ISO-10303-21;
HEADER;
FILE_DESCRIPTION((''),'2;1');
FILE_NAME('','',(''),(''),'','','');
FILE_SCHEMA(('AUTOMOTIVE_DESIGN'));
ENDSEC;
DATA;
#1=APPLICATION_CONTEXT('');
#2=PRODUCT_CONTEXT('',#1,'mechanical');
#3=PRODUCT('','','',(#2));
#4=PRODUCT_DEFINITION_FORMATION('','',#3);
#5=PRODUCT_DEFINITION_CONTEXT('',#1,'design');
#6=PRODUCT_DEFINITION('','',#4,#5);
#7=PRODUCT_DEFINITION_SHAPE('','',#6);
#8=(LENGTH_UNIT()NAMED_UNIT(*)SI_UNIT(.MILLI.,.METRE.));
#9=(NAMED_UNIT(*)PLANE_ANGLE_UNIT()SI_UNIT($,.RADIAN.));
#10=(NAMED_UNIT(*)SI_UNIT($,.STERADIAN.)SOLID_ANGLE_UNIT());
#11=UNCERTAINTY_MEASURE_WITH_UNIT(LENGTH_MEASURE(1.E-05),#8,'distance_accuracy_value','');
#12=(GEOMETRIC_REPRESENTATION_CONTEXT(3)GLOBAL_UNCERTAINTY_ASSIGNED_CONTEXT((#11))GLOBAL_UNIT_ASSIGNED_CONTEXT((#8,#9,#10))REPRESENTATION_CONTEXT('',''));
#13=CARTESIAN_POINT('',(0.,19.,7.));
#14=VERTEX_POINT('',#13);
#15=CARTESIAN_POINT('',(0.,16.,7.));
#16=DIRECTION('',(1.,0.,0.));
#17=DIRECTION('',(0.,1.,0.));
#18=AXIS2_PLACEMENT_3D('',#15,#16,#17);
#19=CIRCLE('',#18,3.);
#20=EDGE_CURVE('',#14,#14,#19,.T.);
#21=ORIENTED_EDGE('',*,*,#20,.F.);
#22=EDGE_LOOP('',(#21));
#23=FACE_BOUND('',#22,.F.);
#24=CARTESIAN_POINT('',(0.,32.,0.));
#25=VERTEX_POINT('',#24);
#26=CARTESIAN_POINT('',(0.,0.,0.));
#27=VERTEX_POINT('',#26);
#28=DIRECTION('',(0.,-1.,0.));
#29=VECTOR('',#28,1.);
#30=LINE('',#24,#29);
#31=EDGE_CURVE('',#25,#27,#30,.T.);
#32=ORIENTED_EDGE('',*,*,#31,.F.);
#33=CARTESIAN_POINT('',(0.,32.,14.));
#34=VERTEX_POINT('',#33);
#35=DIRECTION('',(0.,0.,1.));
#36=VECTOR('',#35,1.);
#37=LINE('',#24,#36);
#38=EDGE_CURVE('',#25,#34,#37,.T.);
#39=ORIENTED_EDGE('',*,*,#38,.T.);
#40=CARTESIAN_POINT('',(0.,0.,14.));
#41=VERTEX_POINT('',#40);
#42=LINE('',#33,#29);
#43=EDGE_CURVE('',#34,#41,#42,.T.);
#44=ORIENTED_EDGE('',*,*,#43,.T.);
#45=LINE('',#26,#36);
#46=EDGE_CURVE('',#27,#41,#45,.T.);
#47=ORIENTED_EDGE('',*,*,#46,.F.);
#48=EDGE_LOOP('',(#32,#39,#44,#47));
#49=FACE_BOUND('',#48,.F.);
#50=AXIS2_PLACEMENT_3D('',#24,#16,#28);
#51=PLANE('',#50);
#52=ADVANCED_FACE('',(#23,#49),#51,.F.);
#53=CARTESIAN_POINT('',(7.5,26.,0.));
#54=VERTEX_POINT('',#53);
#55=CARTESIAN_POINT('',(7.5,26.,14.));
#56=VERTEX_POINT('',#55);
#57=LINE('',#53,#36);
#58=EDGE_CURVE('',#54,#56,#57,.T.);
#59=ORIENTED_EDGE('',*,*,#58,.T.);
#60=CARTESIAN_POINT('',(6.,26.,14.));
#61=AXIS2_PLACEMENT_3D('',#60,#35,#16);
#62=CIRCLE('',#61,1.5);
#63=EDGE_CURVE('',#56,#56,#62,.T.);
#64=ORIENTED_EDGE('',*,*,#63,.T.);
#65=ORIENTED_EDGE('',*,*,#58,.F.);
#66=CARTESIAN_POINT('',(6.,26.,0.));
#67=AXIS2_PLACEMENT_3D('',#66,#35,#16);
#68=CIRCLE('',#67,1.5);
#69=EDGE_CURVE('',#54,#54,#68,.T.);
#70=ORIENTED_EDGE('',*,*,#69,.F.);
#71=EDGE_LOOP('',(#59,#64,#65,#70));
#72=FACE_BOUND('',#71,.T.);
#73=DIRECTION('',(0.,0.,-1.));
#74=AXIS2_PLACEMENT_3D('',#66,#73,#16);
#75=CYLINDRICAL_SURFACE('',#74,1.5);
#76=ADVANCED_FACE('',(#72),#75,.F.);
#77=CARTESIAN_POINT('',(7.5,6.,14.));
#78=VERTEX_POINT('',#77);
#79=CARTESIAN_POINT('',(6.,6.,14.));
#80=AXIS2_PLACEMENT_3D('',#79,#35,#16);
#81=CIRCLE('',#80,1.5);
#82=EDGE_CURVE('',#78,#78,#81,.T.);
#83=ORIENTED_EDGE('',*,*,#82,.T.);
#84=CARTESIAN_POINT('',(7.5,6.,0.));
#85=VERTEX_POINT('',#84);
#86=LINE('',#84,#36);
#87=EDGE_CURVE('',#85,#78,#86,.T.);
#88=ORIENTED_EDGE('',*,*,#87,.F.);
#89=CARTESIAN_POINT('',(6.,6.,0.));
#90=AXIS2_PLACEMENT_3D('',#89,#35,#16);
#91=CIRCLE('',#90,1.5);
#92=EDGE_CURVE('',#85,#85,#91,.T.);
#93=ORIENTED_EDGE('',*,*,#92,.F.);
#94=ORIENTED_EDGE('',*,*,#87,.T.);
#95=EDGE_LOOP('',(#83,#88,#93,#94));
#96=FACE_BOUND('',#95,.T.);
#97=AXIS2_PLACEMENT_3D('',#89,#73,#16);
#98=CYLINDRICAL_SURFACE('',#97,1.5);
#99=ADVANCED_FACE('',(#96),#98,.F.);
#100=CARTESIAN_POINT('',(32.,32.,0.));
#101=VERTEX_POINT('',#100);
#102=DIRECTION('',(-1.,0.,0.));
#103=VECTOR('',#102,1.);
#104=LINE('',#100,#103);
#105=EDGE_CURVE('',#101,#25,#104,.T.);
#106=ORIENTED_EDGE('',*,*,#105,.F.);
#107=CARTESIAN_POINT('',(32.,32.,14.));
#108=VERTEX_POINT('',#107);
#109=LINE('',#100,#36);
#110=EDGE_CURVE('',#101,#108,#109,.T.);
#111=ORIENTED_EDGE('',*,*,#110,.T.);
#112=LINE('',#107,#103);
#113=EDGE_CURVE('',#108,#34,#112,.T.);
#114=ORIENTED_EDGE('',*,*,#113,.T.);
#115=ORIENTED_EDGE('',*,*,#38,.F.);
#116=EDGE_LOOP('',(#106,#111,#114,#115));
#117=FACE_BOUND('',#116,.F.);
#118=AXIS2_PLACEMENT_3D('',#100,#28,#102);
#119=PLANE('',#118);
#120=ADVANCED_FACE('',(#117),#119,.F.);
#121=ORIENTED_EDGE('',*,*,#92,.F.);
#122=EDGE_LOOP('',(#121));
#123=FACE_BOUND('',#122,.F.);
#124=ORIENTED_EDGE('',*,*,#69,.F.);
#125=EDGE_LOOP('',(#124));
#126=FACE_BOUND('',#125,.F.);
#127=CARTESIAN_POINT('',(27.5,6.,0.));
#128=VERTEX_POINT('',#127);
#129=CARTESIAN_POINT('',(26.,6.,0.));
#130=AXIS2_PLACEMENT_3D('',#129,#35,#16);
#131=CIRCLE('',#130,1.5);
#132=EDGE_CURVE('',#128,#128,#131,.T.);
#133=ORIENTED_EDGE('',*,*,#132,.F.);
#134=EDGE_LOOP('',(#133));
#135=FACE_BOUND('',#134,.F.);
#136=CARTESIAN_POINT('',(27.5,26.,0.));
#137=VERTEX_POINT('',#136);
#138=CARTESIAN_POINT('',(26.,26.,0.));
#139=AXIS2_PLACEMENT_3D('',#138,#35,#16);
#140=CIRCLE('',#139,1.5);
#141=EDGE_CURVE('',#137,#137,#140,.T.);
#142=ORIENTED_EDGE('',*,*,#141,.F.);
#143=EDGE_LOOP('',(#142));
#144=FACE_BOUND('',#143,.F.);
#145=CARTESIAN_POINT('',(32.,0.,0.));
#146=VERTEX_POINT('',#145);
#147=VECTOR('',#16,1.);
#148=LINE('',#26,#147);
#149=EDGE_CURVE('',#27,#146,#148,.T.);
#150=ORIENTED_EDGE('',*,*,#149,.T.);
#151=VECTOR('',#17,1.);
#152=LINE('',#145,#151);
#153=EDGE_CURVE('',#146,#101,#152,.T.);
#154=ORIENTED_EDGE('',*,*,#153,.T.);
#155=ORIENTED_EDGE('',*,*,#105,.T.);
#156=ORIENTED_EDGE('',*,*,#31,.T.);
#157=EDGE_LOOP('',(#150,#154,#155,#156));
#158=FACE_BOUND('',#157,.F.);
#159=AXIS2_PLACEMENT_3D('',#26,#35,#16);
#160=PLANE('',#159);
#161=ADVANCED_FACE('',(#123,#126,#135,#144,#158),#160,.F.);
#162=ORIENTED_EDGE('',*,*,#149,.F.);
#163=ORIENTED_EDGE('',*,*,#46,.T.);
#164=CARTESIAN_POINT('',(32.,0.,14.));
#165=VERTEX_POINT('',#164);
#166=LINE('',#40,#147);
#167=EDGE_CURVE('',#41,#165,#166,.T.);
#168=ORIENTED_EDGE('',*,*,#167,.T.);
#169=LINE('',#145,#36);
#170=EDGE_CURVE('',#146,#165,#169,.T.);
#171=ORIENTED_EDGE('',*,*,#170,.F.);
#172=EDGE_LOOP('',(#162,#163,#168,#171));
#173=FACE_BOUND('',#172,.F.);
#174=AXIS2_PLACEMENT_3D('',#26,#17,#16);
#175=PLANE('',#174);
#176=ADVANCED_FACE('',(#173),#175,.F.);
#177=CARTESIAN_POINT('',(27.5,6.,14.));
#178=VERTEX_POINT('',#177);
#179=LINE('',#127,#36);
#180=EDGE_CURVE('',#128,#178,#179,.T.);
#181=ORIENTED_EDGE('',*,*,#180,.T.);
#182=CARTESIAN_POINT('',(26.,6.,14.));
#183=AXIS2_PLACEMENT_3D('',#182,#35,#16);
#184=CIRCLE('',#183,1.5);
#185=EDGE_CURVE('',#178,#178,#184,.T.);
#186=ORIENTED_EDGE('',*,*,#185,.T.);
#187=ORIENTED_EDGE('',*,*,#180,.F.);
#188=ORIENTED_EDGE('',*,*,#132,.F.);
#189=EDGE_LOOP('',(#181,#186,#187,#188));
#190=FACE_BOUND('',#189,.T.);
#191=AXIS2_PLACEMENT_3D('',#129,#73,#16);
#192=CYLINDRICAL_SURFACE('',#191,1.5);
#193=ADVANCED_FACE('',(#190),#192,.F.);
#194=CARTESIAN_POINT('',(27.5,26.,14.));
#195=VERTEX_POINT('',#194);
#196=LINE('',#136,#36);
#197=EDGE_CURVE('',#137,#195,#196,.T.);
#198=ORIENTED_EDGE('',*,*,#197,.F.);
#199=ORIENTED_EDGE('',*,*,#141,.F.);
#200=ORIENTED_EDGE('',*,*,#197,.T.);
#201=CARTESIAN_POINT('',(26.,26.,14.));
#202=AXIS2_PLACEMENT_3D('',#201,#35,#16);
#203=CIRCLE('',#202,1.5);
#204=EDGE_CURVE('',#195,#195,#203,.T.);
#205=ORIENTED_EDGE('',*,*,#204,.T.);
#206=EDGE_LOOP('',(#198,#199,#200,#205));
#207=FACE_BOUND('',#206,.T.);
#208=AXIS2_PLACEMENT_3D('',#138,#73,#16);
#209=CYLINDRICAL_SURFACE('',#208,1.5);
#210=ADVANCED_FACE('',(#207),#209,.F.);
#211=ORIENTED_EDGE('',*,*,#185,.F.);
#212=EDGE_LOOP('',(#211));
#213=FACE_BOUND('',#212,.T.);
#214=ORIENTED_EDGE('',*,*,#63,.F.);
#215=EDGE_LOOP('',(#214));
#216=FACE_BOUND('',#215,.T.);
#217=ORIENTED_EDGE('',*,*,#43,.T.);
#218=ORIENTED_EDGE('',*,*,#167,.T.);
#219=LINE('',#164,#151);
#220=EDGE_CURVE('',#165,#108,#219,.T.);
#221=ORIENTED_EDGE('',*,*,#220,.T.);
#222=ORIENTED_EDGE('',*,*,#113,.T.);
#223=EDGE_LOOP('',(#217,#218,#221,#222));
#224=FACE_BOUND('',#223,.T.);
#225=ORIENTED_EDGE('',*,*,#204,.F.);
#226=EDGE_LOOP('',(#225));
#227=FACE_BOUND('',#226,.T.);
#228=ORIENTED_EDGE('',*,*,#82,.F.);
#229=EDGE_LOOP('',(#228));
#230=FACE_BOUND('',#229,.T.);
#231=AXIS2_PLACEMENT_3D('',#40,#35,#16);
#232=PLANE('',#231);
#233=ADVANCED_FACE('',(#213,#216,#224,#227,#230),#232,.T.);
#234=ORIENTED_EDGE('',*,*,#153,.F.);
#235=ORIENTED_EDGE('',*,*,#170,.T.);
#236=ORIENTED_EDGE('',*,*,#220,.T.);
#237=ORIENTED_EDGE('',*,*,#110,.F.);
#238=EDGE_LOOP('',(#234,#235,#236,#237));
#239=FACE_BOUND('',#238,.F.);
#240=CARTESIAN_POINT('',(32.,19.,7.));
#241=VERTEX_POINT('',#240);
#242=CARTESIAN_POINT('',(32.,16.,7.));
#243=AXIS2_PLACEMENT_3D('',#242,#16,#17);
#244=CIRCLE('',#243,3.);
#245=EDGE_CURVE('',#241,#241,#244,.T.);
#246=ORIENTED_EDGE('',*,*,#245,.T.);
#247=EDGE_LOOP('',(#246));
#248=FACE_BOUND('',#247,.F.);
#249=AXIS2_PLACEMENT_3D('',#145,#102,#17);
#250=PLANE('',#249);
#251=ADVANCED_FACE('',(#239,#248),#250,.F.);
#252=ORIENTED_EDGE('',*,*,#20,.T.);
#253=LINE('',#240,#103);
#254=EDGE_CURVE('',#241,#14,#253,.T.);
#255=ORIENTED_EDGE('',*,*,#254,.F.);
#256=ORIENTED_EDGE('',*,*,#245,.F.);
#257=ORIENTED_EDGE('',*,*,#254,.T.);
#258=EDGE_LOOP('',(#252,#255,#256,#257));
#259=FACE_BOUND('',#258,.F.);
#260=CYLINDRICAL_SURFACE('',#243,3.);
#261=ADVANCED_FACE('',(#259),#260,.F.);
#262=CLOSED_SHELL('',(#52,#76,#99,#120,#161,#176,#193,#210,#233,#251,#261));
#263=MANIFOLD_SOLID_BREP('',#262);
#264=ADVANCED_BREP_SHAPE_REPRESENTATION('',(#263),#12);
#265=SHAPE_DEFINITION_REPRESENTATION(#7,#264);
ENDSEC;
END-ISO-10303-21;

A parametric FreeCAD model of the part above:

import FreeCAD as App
import Part
import Sketcher
from FreeCAD import Vector


def add_polygon(sketch, points):
    """Adds a closed chain of lines whose ends are joined by coincident constraints."""
    first, n = sketch.GeometryCount, len(points)
    for a, b in zip(points, points[1:] + points[:1]):
        sketch.addGeometry(Part.LineSegment(App.Vector(*a, 0), App.Vector(*b, 0)), False)
    for i in range(n):
        sketch.addConstraint(Sketcher.Constraint("Coincident", first + i, 2, first + (i + 1) % n, 1))

doc = App.newDocument("Part")
body = doc.addObject("PartDesign::Body", "Body")

# Sketch on XY plane
sketch1 = body.newObject("Sketcher::SketchObject", "Sketch")
sketch1.AttachmentSupport = (doc.getObject("XY_Plane"), [""])
sketch1.MapMode = "FlatFace"
add_polygon(sketch1, [(0, 32), (0, 0), (32, 0), (32, 32)])  # lines 0-3
sketch1.addGeometry(Part.Circle(Vector(6, 6, 0), Vector(0, 0, 1), 1.5), False)  # 4
sketch1.addGeometry(Part.Circle(Vector(26, 6, 0), Vector(0, 0, 1), 1.5), False)  # 5
sketch1.addGeometry(Part.Circle(Vector(6, 26, 0), Vector(0, 0, 1), 1.5), False)  # 6
sketch1.addGeometry(Part.Circle(Vector(26, 26, 0), Vector(0, 0, 1), 1.5), False)  # 7
sketch1.addConstraint([
    Sketcher.Constraint("Vertical", 0),
    Sketcher.Constraint("Horizontal", 1),
    Sketcher.Constraint("Vertical", 2),
    Sketcher.Constraint("Horizontal", 3),
    Sketcher.Constraint("Coincident", 0, 2, -1, 1),
    Sketcher.Constraint("Equal", 4, 5),
    Sketcher.Constraint("Equal", 5, 6),
    Sketcher.Constraint("Equal", 6, 7),
    Sketcher.Constraint("Horizontal", 4, 3, 5, 3),
    Sketcher.Constraint("Horizontal", 6, 3, 7, 3),
    Sketcher.Constraint("Vertical", 4, 3, 6, 3),
    Sketcher.Constraint("Vertical", 5, 3, 7, 3),
    Sketcher.Constraint("Equal", 3, 0),
    Sketcher.Constraint("Diameter", 4, 3.0),
    Sketcher.Constraint("DistanceX", 1, 1, 1, 2, 32.0),
    Sketcher.Constraint("DistanceX", -1, 1, 4, 3, 6.0),
    Sketcher.Constraint("DistanceY", -1, 1, 4, 3, 6.0),
    Sketcher.Constraint("DistanceX", 4, 3, 5, 3, 20.0),
    Sketcher.Constraint("DistanceY", 4, 3, 6, 3, 20.0),
])
pad1 = body.newObject("PartDesign::Pad", "Pad")
pad1.Profile = sketch1
pad1.Length = 14

# Sketch on YZ plane
sketch2 = body.newObject("Sketcher::SketchObject", "Sketch001")
sketch2.AttachmentSupport = (doc.getObject("YZ_Plane"), [""])
sketch2.MapMode = "FlatFace"
sketch2.AttachmentOffset = App.Placement(Vector(0, 0, 32), App.Rotation())
sketch2.addGeometry(Part.Circle(Vector(16, 7, 0), Vector(0, 0, 1), 3), False)
sketch2.addConstraint([
    Sketcher.Constraint("Diameter", 0, 6.0),
    Sketcher.Constraint("DistanceX", -1, 1, 0, 3, 16.0),
    Sketcher.Constraint("DistanceY", -1, 1, 0, 3, 7.0),
])
pocket1 = body.newObject("PartDesign::Pocket", "Pocket")
pocket1.Profile = sketch2
pocket1.Length = 32

doc.recompute()
